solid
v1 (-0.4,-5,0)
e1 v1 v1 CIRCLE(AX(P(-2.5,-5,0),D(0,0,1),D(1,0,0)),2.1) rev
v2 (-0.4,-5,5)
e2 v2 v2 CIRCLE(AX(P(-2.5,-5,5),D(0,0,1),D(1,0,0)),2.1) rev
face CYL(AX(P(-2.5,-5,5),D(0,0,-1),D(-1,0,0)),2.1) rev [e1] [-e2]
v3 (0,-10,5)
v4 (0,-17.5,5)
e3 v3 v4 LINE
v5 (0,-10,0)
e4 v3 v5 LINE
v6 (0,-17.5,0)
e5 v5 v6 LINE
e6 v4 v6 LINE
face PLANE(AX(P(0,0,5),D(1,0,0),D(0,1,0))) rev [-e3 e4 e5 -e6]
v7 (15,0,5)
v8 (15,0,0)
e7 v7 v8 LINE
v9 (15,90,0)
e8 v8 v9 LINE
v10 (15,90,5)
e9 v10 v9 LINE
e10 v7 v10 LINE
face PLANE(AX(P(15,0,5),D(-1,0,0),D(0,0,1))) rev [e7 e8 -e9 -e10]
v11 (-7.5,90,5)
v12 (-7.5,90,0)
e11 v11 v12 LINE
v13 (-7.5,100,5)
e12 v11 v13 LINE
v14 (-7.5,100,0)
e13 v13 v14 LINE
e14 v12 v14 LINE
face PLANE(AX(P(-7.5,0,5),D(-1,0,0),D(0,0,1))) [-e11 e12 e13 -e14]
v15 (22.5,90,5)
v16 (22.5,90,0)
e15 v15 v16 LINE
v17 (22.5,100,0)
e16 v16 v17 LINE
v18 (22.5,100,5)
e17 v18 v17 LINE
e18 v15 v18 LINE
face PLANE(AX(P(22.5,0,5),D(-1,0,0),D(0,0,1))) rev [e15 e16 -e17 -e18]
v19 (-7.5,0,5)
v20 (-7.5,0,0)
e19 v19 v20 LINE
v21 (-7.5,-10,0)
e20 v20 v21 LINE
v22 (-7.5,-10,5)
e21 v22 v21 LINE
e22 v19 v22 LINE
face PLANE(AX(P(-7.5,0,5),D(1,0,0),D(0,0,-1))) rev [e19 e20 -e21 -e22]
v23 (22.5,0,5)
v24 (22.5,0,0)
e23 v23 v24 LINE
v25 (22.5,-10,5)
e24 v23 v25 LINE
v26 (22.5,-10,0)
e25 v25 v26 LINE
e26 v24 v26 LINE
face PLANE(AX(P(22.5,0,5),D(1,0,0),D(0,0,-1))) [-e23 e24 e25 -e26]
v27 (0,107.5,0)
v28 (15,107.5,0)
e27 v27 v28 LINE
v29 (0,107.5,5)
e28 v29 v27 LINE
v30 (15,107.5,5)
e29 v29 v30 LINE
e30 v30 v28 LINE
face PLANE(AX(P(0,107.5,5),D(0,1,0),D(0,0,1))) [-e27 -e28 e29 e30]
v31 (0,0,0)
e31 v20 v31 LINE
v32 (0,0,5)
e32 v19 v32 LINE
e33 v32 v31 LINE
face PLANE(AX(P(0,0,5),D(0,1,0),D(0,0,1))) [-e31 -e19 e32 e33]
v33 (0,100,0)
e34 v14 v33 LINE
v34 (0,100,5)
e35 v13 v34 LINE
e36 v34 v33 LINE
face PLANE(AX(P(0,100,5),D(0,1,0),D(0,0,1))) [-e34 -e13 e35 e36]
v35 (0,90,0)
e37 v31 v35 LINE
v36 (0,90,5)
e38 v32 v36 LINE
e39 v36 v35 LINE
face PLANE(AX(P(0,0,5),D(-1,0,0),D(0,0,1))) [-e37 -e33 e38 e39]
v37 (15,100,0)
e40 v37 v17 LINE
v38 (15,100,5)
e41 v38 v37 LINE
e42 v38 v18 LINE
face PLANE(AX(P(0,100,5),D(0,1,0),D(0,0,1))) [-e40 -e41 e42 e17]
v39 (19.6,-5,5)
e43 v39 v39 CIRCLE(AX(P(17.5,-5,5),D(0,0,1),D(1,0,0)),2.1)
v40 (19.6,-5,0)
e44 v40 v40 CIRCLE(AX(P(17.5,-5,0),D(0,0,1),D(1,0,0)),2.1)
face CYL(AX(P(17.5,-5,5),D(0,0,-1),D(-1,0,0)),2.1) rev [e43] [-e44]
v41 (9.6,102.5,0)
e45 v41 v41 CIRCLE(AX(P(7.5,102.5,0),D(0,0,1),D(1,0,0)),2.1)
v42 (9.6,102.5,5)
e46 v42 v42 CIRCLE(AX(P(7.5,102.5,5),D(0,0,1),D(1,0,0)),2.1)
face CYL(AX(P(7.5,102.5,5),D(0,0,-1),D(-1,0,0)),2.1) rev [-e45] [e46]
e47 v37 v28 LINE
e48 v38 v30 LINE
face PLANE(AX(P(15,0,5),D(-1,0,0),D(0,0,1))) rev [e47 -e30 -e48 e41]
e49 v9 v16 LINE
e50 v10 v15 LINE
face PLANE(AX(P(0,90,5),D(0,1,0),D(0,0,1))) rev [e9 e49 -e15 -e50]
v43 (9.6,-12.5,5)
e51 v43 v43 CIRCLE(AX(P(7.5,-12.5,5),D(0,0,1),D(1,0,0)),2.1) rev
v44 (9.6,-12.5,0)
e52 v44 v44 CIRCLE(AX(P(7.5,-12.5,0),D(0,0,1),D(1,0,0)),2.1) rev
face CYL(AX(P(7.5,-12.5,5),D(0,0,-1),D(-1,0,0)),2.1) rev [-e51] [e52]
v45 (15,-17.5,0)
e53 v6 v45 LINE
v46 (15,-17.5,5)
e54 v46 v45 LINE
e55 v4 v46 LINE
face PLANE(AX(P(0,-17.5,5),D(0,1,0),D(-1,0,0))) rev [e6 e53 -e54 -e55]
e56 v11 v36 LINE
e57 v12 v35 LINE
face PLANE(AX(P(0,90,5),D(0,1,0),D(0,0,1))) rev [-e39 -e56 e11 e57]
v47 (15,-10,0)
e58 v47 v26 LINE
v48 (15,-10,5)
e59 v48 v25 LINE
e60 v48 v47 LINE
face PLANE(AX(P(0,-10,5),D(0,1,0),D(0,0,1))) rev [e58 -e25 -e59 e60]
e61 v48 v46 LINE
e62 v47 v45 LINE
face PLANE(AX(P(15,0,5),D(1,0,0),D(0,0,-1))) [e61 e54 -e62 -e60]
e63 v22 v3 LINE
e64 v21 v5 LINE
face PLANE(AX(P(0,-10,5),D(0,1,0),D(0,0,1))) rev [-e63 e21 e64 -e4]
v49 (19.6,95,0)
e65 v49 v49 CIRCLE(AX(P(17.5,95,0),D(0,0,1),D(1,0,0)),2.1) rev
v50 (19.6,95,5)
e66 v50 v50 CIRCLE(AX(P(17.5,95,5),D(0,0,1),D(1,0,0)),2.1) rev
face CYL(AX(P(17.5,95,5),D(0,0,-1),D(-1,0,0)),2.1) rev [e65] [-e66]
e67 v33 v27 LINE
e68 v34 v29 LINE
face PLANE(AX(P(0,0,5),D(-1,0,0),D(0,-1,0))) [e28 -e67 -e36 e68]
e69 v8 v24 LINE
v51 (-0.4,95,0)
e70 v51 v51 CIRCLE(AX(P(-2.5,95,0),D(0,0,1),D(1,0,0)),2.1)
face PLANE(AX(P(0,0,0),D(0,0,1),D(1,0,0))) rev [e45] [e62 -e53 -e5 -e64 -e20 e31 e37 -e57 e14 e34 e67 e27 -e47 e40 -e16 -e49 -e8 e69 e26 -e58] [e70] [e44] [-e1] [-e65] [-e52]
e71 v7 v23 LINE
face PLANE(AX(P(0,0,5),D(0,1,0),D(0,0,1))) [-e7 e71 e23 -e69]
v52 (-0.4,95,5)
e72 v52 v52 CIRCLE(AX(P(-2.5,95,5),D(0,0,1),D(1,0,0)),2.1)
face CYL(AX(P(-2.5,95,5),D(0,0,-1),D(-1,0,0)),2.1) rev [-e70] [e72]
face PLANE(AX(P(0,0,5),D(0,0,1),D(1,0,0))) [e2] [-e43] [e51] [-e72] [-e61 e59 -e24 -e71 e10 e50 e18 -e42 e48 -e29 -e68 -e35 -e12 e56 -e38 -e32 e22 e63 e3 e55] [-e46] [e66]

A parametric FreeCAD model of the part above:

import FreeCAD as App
import Part
import Sketcher

doc = App.newDocument("Part")
body = doc.addObject("PartDesign::Body", "Body")

sketch1 = body.newObject("Sketcher::SketchObject", "Sketch")
sketch1.AttachmentSupport = (doc.getObject("XY_Plane"), [""])
sketch1.MapMode = "FlatFace"
sketch1.addGeometry([
    Part.LineSegment(App.Vector(0, 90, 0), App.Vector(0, 0, 0)),
    Part.LineSegment(App.Vector(0, 0, 0), App.Vector(-7.5, 0, 0)),
    Part.LineSegment(App.Vector(-7.5, 0, 0), App.Vector(-7.5, -10, 0)),
    Part.LineSegment(App.Vector(-7.5, -10, 0), App.Vector(0, -10, 0)),
    Part.LineSegment(App.Vector(0, -10, 0), App.Vector(0, -17.5, 0)),
    Part.LineSegment(App.Vector(0, -17.5, 0), App.Vector(15, -17.5, 0)),
    Part.LineSegment(App.Vector(15, -17.5, 0), App.Vector(15, -10, 0)),
    Part.LineSegment(App.Vector(15, -10, 0), App.Vector(22.5, -10, 0)),
    Part.LineSegment(App.Vector(22.5, -10, 0), App.Vector(22.5, 0, 0)),
    Part.LineSegment(App.Vector(22.5, 0, 0), App.Vector(15, 0, 0)),
    Part.LineSegment(App.Vector(15, 0, 0), App.Vector(15, 90, 0)),
    Part.LineSegment(App.Vector(15, 90, 0), App.Vector(22.5, 90, 0)),
    Part.LineSegment(App.Vector(22.5, 90, 0), App.Vector(22.5, 100, 0)),
    Part.LineSegment(App.Vector(22.5, 100, 0), App.Vector(15, 100, 0)),
    Part.LineSegment(App.Vector(15, 100, 0), App.Vector(15, 107.5, 0)),
    Part.LineSegment(App.Vector(15, 107.5, 0), App.Vector(0, 107.5, 0)),
    Part.LineSegment(App.Vector(0, 107.5, 0), App.Vector(0, 100, 0)),
    Part.LineSegment(App.Vector(0, 100, 0), App.Vector(-7.5, 100, 0)),
    Part.LineSegment(App.Vector(-7.5, 100, 0), App.Vector(-7.5, 90, 0)),
    Part.LineSegment(App.Vector(-7.5, 90, 0), App.Vector(0, 90, 0)),
    Part.Circle(App.Vector(-2.5, -5, 0), App.Vector(0, 0, 1), 2.1),
    Part.Circle(App.Vector(7.5, -12.5, 0), App.Vector(0, 0, 1), 2.1),
    Part.Circle(App.Vector(17.5, -5, 0), App.Vector(0, 0, 1), 2.1),
    Part.Circle(App.Vector(-2.5, 95, 0), App.Vector(0, 0, 1), 2.1),
    Part.Circle(App.Vector(7.5, 102.5, 0), App.Vector(0, 0, 1), 2.1),
    Part.Circle(App.Vector(17.5, 95, 0), App.Vector(0, 0, 1), 2.1),
], False)
sketch1.addConstraint([
    Sketcher.Constraint("Coincident", 0, 2, 1, 1),
    Sketcher.Constraint("Coincident", 1, 2, 2, 1),
    Sketcher.Constraint("Coincident", 2, 2, 3, 1),
    Sketcher.Constraint("Coincident", 3, 2, 4, 1),
    Sketcher.Constraint("Coincident", 4, 2, 5, 1),
    Sketcher.Constraint("Coincident", 5, 2, 6, 1),
    Sketcher.Constraint("Coincident", 6, 2, 7, 1),
    Sketcher.Constraint("Coincident", 7, 2, 8, 1),
    Sketcher.Constraint("Coincident", 8, 2, 9, 1),
    Sketcher.Constraint("Coincident", 9, 2, 10, 1),
    Sketcher.Constraint("Coincident", 10, 2, 11, 1),
    Sketcher.Constraint("Coincident", 11, 2, 12, 1),
    Sketcher.Constraint("Coincident", 12, 2, 13, 1),
    Sketcher.Constraint("Coincident", 13, 2, 14, 1),
    Sketcher.Constraint("Coincident", 14, 2, 15, 1),
    Sketcher.Constraint("Coincident", 15, 2, 16, 1),
    Sketcher.Constraint("Coincident", 16, 2, 17, 1),
    Sketcher.Constraint("Coincident", 17, 2, 18, 1),
    Sketcher.Constraint("Coincident", 18, 2, 19, 1),
    Sketcher.Constraint("Coincident", 19, 2, 0, 1),
    Sketcher.Constraint("Vertical", 0),
    Sketcher.Constraint("Horizontal", 1),
    Sketcher.Constraint("Vertical", 2),
    Sketcher.Constraint("Horizontal", 3),
    Sketcher.Constraint("Vertical", 4),
    Sketcher.Constraint("Horizontal", 5),
    Sketcher.Constraint("Vertical", 6),
    Sketcher.Constraint("Horizontal", 7),
    Sketcher.Constraint("Vertical", 8),
    Sketcher.Constraint("Horizontal", 9),
    Sketcher.Constraint("Vertical", 10),
    Sketcher.Constraint("Horizontal", 11),
    Sketcher.Constraint("Vertical", 12),
    Sketcher.Constraint("Horizontal", 13),
    Sketcher.Constraint("Vertical", 14),
    Sketcher.Constraint("Horizontal", 15),
    Sketcher.Constraint("Vertical", 16),
    Sketcher.Constraint("Horizontal", 17),
    Sketcher.Constraint("Vertical", 18),
    Sketcher.Constraint("Horizontal", 19),
    Sketcher.Constraint("Coincident", 0, 2, -1, 1),
    Sketcher.Constraint("Equal", 20, 21),
    Sketcher.Constraint("Equal", 21, 22),
    Sketcher.Constraint("Equal", 22, 23),
    Sketcher.Constraint("Equal", 23, 24),
    Sketcher.Constraint("Equal", 24, 25),
    Sketcher.Constraint("PointOnObject", 3, 2, -2),
    Sketcher.Constraint("PointOnObject", 8, 2, -1),
    Sketcher.Constraint("PointOnObject", 15, 2, -2),
    Sketcher.Constraint("Horizontal", 20, 3, 22, 3),
    Sketcher.Constraint("Horizontal", 23, 3, 25, 3),
    Sketcher.Constraint("Horizontal", 3, 2, 6, 2),
    Sketcher.Constraint("Horizontal", 13, 2, 16, 2),
    Sketcher.Constraint("Horizontal", 11, 2, 18, 2),
    Sketcher.Constraint("Vertical", 20, 3, 23, 3),
    Sketcher.Constraint("Vertical", 21, 3, 24, 3),
    Sketcher.Constraint("Vertical", 22, 3, 25, 3),
    Sketcher.Constraint("Vertical", 6, 2, 9, 2),
    Sketcher.Constraint("Vertical", 8, 2, 11, 2),
    Sketcher.Constraint("Vertical", 10, 2, 13, 2),
    Sketcher.Constraint("Vertical", 2, 2, 17, 2),
    Sketcher.Constraint("Equal", 3, 7),
    Sketcher.Constraint("Equal", 19, 4),
    Sketcher.Constraint("Equal", 8, 12),
    Sketcher.Constraint("Equal", 6, 14),
    Sketcher.Constraint("Diameter", 20, 4.2),
    Sketcher.Constraint("DistanceX", 5, 1, 5, 2, 15.0),
    Sketcher.Constraint("DistanceY", 0, 2, 0, 1, 90.0),
    Sketcher.Constraint("DistanceY", 2, 2, 2, 1, 10.0),
    Sketcher.Constraint("DistanceX", 1, 2, 1, 1, 7.5),
    Sketcher.Constraint("DistanceY", 20, 3, -1, 1, 5.0),
    Sketcher.Constraint("DistanceY", -1, 1, 23, 3, 95.0),
    Sketcher.Constraint("DistanceX", 20, 3, 21, 3, 10.0),
    Sketcher.Constraint("DistanceX", 21, 3, 22, 3, 10.0),
    Sketcher.Constraint("DistanceY", 21, 3, 24, 3, 115.0),
    Sketcher.Constraint("DistanceX", 1, 2, 20, 3, 5.0),
    Sketcher.Constraint("DistanceY", 4, 2, 21, 3, 5.0),
])
pad1 = body.newObject("PartDesign::Pad", "Pad")
pad1.Profile = sketch1
pad1.Length = 5

doc.recompute()
